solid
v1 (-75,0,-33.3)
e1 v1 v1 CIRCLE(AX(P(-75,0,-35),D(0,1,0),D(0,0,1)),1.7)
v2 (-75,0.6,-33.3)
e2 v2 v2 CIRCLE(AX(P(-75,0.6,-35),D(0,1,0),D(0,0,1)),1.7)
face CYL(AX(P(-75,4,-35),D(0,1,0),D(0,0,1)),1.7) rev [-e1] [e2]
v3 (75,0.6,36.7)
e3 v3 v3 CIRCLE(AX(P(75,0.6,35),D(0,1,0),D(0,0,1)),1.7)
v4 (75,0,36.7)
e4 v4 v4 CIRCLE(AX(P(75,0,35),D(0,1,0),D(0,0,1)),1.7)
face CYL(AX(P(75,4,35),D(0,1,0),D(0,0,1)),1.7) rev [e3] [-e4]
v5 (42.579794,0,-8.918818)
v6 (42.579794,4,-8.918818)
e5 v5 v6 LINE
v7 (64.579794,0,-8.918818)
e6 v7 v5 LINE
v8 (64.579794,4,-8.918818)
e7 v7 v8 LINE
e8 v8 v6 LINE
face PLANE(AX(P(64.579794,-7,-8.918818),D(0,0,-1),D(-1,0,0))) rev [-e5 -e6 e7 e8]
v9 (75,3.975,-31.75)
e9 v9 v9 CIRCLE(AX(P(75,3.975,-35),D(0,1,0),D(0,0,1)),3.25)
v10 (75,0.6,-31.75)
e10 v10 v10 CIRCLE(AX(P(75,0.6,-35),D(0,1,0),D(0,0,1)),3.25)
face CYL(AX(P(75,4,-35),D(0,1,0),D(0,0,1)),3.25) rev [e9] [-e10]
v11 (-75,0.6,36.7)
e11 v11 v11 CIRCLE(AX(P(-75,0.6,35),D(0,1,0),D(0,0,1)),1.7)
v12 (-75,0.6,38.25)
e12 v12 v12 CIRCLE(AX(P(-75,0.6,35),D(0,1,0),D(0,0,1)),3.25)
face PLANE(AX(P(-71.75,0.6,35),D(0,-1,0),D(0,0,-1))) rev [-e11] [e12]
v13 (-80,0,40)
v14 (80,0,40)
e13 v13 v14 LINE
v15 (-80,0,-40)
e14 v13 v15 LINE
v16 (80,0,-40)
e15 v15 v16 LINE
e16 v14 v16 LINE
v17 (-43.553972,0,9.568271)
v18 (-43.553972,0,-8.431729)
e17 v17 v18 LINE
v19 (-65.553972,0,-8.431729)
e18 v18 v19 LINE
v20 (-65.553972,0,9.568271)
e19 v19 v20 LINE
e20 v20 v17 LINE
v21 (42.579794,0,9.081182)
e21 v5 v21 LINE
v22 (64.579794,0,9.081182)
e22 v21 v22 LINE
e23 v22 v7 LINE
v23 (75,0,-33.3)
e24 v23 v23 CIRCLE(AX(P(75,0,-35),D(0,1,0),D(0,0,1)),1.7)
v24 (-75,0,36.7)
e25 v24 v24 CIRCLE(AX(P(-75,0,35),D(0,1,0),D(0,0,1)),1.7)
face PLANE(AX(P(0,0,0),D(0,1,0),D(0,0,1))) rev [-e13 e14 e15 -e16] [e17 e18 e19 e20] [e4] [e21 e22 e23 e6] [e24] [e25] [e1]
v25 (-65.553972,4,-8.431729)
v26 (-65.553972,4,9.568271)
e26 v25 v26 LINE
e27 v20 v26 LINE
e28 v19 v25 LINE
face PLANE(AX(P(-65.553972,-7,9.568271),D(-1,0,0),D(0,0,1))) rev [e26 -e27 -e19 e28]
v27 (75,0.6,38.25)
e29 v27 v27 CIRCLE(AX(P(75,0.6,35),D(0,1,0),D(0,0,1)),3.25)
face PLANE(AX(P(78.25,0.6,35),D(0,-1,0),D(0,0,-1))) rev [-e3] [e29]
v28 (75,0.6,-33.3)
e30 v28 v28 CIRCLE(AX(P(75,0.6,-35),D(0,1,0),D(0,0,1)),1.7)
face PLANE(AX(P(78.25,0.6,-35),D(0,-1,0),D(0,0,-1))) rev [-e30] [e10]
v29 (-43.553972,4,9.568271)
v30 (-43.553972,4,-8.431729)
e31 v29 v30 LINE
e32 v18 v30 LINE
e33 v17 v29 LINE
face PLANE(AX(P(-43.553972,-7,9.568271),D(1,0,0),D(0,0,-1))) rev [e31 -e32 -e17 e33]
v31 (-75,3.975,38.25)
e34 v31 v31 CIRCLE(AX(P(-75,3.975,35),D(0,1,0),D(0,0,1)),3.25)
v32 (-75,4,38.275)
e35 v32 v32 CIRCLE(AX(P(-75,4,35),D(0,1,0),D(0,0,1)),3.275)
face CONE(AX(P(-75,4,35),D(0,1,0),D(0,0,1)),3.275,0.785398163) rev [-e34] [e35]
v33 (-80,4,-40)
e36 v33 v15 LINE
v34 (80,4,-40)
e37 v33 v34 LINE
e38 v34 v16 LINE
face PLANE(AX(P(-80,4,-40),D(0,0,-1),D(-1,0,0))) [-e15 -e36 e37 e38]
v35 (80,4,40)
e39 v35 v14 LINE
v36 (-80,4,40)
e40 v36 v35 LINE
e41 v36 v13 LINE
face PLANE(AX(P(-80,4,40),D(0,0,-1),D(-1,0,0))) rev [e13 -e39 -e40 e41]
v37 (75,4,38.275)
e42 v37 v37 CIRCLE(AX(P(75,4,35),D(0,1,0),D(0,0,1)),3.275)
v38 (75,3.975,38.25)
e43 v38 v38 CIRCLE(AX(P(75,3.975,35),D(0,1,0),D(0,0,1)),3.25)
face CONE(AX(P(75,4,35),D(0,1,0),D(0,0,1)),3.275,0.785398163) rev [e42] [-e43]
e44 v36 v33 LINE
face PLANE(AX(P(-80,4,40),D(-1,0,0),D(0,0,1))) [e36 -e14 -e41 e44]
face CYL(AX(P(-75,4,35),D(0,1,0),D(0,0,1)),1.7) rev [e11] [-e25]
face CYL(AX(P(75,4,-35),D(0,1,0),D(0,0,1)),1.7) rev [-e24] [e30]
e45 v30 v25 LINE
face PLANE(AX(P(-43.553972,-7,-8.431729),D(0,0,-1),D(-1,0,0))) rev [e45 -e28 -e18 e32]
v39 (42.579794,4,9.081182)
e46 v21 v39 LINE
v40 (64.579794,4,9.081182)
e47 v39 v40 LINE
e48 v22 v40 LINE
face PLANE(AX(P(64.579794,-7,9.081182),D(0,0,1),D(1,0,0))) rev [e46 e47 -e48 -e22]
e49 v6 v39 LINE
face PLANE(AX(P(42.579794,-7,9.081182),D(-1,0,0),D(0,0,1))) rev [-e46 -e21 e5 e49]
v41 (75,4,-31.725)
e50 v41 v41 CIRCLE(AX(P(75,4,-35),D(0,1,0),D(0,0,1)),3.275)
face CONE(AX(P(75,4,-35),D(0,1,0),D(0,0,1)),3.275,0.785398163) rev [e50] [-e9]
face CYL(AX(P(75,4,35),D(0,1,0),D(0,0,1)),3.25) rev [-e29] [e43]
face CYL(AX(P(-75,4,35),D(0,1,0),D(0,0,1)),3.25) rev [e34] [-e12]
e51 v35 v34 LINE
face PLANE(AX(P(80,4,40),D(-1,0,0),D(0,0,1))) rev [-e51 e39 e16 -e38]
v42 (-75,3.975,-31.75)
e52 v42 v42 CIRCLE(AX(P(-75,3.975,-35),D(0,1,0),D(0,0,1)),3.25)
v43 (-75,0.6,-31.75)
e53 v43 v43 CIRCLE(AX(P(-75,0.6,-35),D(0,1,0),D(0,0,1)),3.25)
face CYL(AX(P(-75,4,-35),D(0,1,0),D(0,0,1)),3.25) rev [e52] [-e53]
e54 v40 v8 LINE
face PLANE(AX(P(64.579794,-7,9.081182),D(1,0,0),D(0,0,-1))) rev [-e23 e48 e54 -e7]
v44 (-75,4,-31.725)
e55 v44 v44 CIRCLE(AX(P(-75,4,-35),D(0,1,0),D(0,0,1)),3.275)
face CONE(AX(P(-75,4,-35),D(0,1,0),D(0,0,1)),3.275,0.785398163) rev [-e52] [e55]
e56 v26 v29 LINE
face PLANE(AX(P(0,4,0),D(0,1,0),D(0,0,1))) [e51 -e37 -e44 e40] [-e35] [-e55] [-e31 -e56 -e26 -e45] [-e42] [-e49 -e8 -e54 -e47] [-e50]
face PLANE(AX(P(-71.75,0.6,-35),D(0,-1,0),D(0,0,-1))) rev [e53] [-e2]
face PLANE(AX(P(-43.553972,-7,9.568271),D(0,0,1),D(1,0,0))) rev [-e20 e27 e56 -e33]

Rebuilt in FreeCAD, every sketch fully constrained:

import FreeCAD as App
import Part
import Sketcher
Q = App.Units.Quantity


def add_polygon(sketch, points):
    """Adds a closed chain of lines whose ends are joined by coincident constraints."""
    first, n = sketch.GeometryCount, len(points)
    for a, b in zip(points, points[1:] + points[:1]):
        sketch.addGeometry(Part.LineSegment(App.Vector(*a, 0), App.Vector(*b, 0)), False)
    for i in range(n):
        sketch.addConstraint(Sketcher.Constraint("Coincident", first + i, 2, first + (i + 1) % n, 1))

doc = App.newDocument("Part")
body = doc.addObject("PartDesign::Body", "Body")

# Sketch on XZ plane
sketch1 = doc.addObject("Sketcher::SketchObject", "Sketch")
body.addObject(sketch1)
sketch1.AttachmentSupport = (doc.XZ_Plane, [""])
sketch1.MapMode = "FlatFace"
add_polygon(sketch1, [(-80, -40), (-80, 40), (80, 40), (80, -40)])  # lines 0-3
sketch1.addConstraint([
    Sketcher.Constraint("Vertical", 0),
    Sketcher.Constraint("Horizontal", 1),
    Sketcher.Constraint("Vertical", 2),
    Sketcher.Constraint("Horizontal", 3),
    Sketcher.Constraint("Symmetric", 0, 2, 2, 2, -1, 1),
    Sketcher.Constraint("DistanceX", 1, 1, 1, 2, 160.0),
    Sketcher.Constraint("DistanceY", 0, 1, 0, 2, 80.0),
])
pad1 = doc.addObject("PartDesign::Pad", "Pad")
body.addObject(pad1)
pad1.Profile = sketch1
pad1.Length = 4
pad1.Reversed = True

# Sketch on XZ plane
sketch2 = doc.addObject("Sketcher::SketchObject", "Sketch001")
body.addObject(sketch2)
sketch2.AttachmentSupport = (doc.XZ_Plane, [""])
sketch2.MapMode = "FlatFace"
sketch2.AttachmentOffset = App.Placement(App.Vector(0, 0, -4), App.Rotation())
add_polygon(sketch2, [(-65.553972, -8.431729), (-65.553972, 9.568271), (-43.553972, 9.568271), (-43.553972, -8.431729)])  # lines 0-3
add_polygon(sketch2, [(42.579794, -8.918818), (42.579794, 9.081182), (64.579794, 9.081182), (64.579794, -8.918818)])  # lines 4-7
sketch2.addConstraint([
    Sketcher.Constraint("Vertical", 0),
    Sketcher.Constraint("Horizontal", 1),
    Sketcher.Constraint("Vertical", 2),
    Sketcher.Constraint("Horizontal", 3),
    Sketcher.Constraint("Vertical", 4),
    Sketcher.Constraint("Horizontal", 5),
    Sketcher.Constraint("Vertical", 6),
    Sketcher.Constraint("Horizontal", 7),
    Sketcher.Constraint("Equal", 3, 5),
    Sketcher.Constraint("Equal", 2, 4),
    Sketcher.Constraint("DistanceX", 1, 1, 1, 2, 22.0),
    Sketcher.Constraint("DistanceY", 0, 1, 0, 2, 18.0),
    Sketcher.Constraint("DistanceX", 0, 2, -1, 1, 65.553972),
    Sketcher.Constraint("DistanceY", -1, 1, 0, 2, 9.568271),
    Sketcher.Constraint("DistanceY", -1, 1, 4, 2, 9.081182),
    Sketcher.Constraint("DistanceX", -1, 1, 4, 2, 42.579794),
])
pocket1 = doc.addObject("PartDesign::Pocket", "Pocket")
body.addObject(pocket1)
pocket1.Profile = sketch2
pocket1.Length = 11
pocket1.Reversed = True

# Sketch on YZ plane
sketch3 = doc.addObject("Sketcher::SketchObject", "Sketch002")
body.addObject(sketch3)
sketch3.AttachmentSupport = (doc.YZ_Plane, [""])
sketch3.MapMode = "FlatFace"
sketch3.AttachmentOffset = App.Placement(App.Vector(0, 0, -75), App.Rotation())
add_polygon(sketch3, [(0, -35), (4, -35), (4, -31.725), (3.975, -31.75), (0.6, -31.75), (0.6, -33.3), (0, -33.3)])  # lines 0-6
sketch3.addGeometry(Part.LineSegment(App.Vector(4, -35, 0), App.Vector(0, -35, 0)), True)  # axis
sketch3.addConstraint([
    Sketcher.Constraint("Horizontal", 0),
    Sketcher.Constraint("Vertical", 1),
    Sketcher.Constraint("Horizontal", 3),
    Sketcher.Constraint("Vertical", 4),
    Sketcher.Constraint("Horizontal", 5),
    Sketcher.Constraint("Vertical", 6),
    Sketcher.Constraint("Horizontal", 7),
    Sketcher.Constraint("Coincident", 7, 1, 0, 2),
    Sketcher.Constraint("PointOnObject", 5, 2, -2),
    Sketcher.Constraint("PointOnObject", 7, 2, -2),
    Sketcher.Constraint("DistanceX", 0, 1, 0, 2, 4.0),
    Sketcher.Constraint("Angle", 2, Q("-135 deg")),
    Sketcher.Constraint("DistanceX", 5, 2, 5, 1, 0.6),
    Sketcher.Constraint("DistanceY", 6, 2, 6, 1, 1.7),
    Sketcher.Constraint("DistanceY", 0, 2, -1, 1, 35.0),
    Sketcher.Constraint("DistanceY", 4, 2, 4, 1, 1.55),
    Sketcher.Constraint("DistanceX", 3, 2, 3, 1, 3.375),
])
groove = doc.addObject("PartDesign::Groove", "Groove")
body.addObject(groove)
groove.Profile = sketch3
groove.ReferenceAxis = (sketch3, ["Axis0"])
groove.Angle = 360
doc.recompute()

linearpattern = doc.addObject("PartDesign::LinearPattern", "LinearPattern")
body.addObject(linearpattern)
linearpattern.Originals = [groove]
linearpattern.Direction = (doc.X_Axis, [""])
linearpattern.Mode = "offset"
linearpattern.Offset = 150
linearpattern.Occurrences = 2
body.Tip = linearpattern
doc.recompute()

datumline = doc.addObject("PartDesign::Line", "DatumLine")
body.addObject(datumline)
datumline.Placement = App.Placement(App.Vector(0, 0, 0), App.Rotation(App.Vector(0, 0, 1), App.Vector(0.90618314, 0, 0.422885465)))
linearpattern2 = doc.addObject("PartDesign::LinearPattern", "LinearPattern001")
body.addObject(linearpattern2)
linearpattern2.Originals = [groove]
linearpattern2.Direction = (datumline, [""])
linearpattern2.Mode = "offset"
linearpattern2.Offset = 165.529454
linearpattern2.Occurrences = 2
body.Tip = linearpattern2
doc.recompute()

linearpattern3 = doc.addObject("PartDesign::LinearPattern", "LinearPattern002")
body.addObject(linearpattern3)
linearpattern3.Originals = [groove]
linearpattern3.Direction = (doc.Z_Axis, [""])
linearpattern3.Mode = "offset"
linearpattern3.Offset = 70
linearpattern3.Occurrences = 2
body.Tip = linearpattern3

doc.recompute()
